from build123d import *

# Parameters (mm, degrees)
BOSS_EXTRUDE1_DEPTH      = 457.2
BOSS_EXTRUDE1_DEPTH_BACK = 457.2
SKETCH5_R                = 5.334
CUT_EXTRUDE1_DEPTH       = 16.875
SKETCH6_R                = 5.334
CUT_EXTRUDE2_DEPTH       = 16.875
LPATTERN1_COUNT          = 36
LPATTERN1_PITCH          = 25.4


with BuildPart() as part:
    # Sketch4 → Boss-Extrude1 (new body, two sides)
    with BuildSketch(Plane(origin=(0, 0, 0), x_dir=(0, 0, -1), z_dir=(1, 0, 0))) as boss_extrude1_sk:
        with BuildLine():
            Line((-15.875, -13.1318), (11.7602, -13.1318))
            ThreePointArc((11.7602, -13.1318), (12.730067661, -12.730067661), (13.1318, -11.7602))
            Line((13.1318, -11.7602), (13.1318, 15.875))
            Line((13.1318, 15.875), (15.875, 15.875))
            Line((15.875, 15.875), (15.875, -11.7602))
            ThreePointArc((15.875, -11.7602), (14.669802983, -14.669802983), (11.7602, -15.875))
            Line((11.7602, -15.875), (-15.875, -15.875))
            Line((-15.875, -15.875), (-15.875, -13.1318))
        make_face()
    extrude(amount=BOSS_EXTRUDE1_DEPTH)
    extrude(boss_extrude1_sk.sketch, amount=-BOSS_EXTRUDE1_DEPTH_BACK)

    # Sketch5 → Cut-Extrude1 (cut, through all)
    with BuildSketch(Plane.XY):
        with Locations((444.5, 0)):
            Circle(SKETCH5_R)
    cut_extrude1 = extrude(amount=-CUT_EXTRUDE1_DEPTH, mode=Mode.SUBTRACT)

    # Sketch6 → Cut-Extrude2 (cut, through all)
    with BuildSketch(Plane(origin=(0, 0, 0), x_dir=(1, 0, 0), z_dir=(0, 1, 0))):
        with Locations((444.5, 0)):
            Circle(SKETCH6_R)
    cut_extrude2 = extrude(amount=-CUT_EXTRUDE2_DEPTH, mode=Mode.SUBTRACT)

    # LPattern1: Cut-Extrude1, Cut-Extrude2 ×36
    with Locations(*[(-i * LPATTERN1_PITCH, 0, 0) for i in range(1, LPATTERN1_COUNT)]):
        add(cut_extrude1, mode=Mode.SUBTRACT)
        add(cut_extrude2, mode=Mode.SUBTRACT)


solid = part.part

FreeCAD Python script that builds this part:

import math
import FreeCAD as App
import Part
import Sketcher

V = App.Vector
Q = App.Units.Quantity

doc = App.newDocument("Part")
body = doc.addObject("PartDesign::Body", "Body")

# Sketch on YZ plane
sketch1 = body.newObject("Sketcher::SketchObject", "Sketch")
sketch1.AttachmentSupport = (doc.getObject("YZ_Plane"), [""])
sketch1.MapMode = "FlatFace"
sketch1.addGeometry(Part.LineSegment(V(-13.1318, -11.7602, 0), V(-13.1318, 15.875, 0)), False)
sketch1.addGeometry(Part.LineSegment(V(-13.1318, 15.875, 0), V(-15.875, 15.875, 0)), False)
sketch1.addGeometry(Part.LineSegment(V(-15.875, 15.875, 0), V(-15.875, -11.7602, 0)), False)
sketch1.addGeometry(Part.ArcOfCircle(Part.Circle(V(-11.7602, -11.7602, 0), V(0, 0, 1), 4.1148), math.radians(-180), math.radians(-90)), False)
sketch1.addGeometry(Part.LineSegment(V(-11.7602, -15.875, 0), V(15.875, -15.875, 0)), False)
sketch1.addGeometry(Part.LineSegment(V(15.875, -15.875, 0), V(15.875, -13.1318, 0)), False)
sketch1.addGeometry(Part.LineSegment(V(15.875, -13.1318, 0), V(-11.7602, -13.1318, 0)), False)
sketch1.addGeometry(Part.ArcOfCircle(Part.Circle(V(-11.7602, -11.7602, 0), V(0, 0, 1), 1.3716), math.radians(180), math.radians(270)), False)
sketch1.addConstraint(Sketcher.Constraint("Coincident", 0, 2, 1, 1))
sketch1.addConstraint(Sketcher.Constraint("Coincident", 1, 2, 2, 1))
sketch1.addConstraint(Sketcher.Constraint("Tangent", 2, 2, 3, 1))
sketch1.addConstraint(Sketcher.Constraint("Tangent", 3, 2, 4, 1))
sketch1.addConstraint(Sketcher.Constraint("Coincident", 4, 2, 5, 1))
sketch1.addConstraint(Sketcher.Constraint("Coincident", 5, 2, 6, 1))
sketch1.addConstraint(Sketcher.Constraint("Tangent", 6, 2, 7, 2))
sketch1.addConstraint(Sketcher.Constraint("Tangent", 7, 1, 0, 1))
sketch1.addConstraint(Sketcher.Constraint("Vertical", 0))
sketch1.addConstraint(Sketcher.Constraint("Horizontal", 1))
sketch1.addConstraint(Sketcher.Constraint("Vertical", 2))
sketch1.addConstraint(Sketcher.Constraint("Horizontal", 4))
sketch1.addConstraint(Sketcher.Constraint("Vertical", 5))
sketch1.addConstraint(Sketcher.Constraint("Horizontal", 6))
sketch1.addConstraint(Sketcher.Constraint("Coincident", 7, 3, 3, 3))
sketch1.addConstraint(Sketcher.Constraint("Symmetric", 1, 2, 4, 2, -1, 1))
sketch1.addConstraint(Sketcher.Constraint("Equal", 6, 0))
sketch1.addConstraint(Sketcher.Constraint("Radius", 3, Q("0.162 in")))
sketch1.addConstraint(Sketcher.Constraint("Radius", 7, Q("0.054 in")))
sketch1.addConstraint(Sketcher.Constraint("DistanceX", 4, 1, 4, 2, Q("1.088 in")))
pad1 = body.newObject("PartDesign::Pad", "Pad")
pad1.Profile = sketch1
pad1.Type = "TwoLengths"
pad1.Length = Q("18 in")
pad1.Length2 = Q("18 in")

# Sketch on XY plane
sketch2 = body.newObject("Sketcher::SketchObject", "Sketch001")
sketch2.AttachmentSupport = (doc.getObject("XY_Plane"), [""])
sketch2.MapMode = "FlatFace"
sketch2.addGeometry(Part.Circle(V(444.5, 0, 0), V(0, 0, 1), 5.334), False)
sketch2.addConstraint(Sketcher.Constraint("PointOnObject", 0, 3, -1))
sketch2.addConstraint(Sketcher.Constraint("Diameter", 0, Q("0.42 in")))
sketch2.addConstraint(Sketcher.Constraint("DistanceX", -1, 1, 0, 3, Q("17.5 in")))
pocket1 = body.newObject("PartDesign::Pocket", "Pocket")
pocket1.Profile = sketch2
pocket1.Type = "ThroughAll"

# Sketch on XZ plane
sketch3 = body.newObject("Sketcher::SketchObject", "Sketch002")
sketch3.AttachmentSupport = (doc.getObject("XZ_Plane"), [""])
sketch3.MapMode = "FlatFace"
sketch3.addGeometry(Part.Circle(V(444.5, 0, 0), V(0, 0, 1), 5.334), False)
sketch3.addConstraint(Sketcher.Constraint("PointOnObject", 0, 3, -1))
sketch3.addConstraint(Sketcher.Constraint("Diameter", 0, Q("0.42 in")))
sketch3.addConstraint(Sketcher.Constraint("DistanceX", -1, 1, 0, 3, Q("17.5 in")))
pocket2 = body.newObject("PartDesign::Pocket", "Pocket001")
pocket2.Profile = sketch3
pocket2.Type = "ThroughAll"
pocket2.Reversed = True
doc.recompute()

linearpattern = body.newObject("PartDesign::LinearPattern", "LinearPattern")
linearpattern.Originals = [pocket1, pocket2]
linearpattern.Direction = (doc.getObject("X_Axis"), [""])
linearpattern.Mode = "offset"
linearpattern.Offset = Q("1 in")
linearpattern.Occurrences = 36
linearpattern.Reversed = True
body.Tip = linearpattern

doc.recompute()
